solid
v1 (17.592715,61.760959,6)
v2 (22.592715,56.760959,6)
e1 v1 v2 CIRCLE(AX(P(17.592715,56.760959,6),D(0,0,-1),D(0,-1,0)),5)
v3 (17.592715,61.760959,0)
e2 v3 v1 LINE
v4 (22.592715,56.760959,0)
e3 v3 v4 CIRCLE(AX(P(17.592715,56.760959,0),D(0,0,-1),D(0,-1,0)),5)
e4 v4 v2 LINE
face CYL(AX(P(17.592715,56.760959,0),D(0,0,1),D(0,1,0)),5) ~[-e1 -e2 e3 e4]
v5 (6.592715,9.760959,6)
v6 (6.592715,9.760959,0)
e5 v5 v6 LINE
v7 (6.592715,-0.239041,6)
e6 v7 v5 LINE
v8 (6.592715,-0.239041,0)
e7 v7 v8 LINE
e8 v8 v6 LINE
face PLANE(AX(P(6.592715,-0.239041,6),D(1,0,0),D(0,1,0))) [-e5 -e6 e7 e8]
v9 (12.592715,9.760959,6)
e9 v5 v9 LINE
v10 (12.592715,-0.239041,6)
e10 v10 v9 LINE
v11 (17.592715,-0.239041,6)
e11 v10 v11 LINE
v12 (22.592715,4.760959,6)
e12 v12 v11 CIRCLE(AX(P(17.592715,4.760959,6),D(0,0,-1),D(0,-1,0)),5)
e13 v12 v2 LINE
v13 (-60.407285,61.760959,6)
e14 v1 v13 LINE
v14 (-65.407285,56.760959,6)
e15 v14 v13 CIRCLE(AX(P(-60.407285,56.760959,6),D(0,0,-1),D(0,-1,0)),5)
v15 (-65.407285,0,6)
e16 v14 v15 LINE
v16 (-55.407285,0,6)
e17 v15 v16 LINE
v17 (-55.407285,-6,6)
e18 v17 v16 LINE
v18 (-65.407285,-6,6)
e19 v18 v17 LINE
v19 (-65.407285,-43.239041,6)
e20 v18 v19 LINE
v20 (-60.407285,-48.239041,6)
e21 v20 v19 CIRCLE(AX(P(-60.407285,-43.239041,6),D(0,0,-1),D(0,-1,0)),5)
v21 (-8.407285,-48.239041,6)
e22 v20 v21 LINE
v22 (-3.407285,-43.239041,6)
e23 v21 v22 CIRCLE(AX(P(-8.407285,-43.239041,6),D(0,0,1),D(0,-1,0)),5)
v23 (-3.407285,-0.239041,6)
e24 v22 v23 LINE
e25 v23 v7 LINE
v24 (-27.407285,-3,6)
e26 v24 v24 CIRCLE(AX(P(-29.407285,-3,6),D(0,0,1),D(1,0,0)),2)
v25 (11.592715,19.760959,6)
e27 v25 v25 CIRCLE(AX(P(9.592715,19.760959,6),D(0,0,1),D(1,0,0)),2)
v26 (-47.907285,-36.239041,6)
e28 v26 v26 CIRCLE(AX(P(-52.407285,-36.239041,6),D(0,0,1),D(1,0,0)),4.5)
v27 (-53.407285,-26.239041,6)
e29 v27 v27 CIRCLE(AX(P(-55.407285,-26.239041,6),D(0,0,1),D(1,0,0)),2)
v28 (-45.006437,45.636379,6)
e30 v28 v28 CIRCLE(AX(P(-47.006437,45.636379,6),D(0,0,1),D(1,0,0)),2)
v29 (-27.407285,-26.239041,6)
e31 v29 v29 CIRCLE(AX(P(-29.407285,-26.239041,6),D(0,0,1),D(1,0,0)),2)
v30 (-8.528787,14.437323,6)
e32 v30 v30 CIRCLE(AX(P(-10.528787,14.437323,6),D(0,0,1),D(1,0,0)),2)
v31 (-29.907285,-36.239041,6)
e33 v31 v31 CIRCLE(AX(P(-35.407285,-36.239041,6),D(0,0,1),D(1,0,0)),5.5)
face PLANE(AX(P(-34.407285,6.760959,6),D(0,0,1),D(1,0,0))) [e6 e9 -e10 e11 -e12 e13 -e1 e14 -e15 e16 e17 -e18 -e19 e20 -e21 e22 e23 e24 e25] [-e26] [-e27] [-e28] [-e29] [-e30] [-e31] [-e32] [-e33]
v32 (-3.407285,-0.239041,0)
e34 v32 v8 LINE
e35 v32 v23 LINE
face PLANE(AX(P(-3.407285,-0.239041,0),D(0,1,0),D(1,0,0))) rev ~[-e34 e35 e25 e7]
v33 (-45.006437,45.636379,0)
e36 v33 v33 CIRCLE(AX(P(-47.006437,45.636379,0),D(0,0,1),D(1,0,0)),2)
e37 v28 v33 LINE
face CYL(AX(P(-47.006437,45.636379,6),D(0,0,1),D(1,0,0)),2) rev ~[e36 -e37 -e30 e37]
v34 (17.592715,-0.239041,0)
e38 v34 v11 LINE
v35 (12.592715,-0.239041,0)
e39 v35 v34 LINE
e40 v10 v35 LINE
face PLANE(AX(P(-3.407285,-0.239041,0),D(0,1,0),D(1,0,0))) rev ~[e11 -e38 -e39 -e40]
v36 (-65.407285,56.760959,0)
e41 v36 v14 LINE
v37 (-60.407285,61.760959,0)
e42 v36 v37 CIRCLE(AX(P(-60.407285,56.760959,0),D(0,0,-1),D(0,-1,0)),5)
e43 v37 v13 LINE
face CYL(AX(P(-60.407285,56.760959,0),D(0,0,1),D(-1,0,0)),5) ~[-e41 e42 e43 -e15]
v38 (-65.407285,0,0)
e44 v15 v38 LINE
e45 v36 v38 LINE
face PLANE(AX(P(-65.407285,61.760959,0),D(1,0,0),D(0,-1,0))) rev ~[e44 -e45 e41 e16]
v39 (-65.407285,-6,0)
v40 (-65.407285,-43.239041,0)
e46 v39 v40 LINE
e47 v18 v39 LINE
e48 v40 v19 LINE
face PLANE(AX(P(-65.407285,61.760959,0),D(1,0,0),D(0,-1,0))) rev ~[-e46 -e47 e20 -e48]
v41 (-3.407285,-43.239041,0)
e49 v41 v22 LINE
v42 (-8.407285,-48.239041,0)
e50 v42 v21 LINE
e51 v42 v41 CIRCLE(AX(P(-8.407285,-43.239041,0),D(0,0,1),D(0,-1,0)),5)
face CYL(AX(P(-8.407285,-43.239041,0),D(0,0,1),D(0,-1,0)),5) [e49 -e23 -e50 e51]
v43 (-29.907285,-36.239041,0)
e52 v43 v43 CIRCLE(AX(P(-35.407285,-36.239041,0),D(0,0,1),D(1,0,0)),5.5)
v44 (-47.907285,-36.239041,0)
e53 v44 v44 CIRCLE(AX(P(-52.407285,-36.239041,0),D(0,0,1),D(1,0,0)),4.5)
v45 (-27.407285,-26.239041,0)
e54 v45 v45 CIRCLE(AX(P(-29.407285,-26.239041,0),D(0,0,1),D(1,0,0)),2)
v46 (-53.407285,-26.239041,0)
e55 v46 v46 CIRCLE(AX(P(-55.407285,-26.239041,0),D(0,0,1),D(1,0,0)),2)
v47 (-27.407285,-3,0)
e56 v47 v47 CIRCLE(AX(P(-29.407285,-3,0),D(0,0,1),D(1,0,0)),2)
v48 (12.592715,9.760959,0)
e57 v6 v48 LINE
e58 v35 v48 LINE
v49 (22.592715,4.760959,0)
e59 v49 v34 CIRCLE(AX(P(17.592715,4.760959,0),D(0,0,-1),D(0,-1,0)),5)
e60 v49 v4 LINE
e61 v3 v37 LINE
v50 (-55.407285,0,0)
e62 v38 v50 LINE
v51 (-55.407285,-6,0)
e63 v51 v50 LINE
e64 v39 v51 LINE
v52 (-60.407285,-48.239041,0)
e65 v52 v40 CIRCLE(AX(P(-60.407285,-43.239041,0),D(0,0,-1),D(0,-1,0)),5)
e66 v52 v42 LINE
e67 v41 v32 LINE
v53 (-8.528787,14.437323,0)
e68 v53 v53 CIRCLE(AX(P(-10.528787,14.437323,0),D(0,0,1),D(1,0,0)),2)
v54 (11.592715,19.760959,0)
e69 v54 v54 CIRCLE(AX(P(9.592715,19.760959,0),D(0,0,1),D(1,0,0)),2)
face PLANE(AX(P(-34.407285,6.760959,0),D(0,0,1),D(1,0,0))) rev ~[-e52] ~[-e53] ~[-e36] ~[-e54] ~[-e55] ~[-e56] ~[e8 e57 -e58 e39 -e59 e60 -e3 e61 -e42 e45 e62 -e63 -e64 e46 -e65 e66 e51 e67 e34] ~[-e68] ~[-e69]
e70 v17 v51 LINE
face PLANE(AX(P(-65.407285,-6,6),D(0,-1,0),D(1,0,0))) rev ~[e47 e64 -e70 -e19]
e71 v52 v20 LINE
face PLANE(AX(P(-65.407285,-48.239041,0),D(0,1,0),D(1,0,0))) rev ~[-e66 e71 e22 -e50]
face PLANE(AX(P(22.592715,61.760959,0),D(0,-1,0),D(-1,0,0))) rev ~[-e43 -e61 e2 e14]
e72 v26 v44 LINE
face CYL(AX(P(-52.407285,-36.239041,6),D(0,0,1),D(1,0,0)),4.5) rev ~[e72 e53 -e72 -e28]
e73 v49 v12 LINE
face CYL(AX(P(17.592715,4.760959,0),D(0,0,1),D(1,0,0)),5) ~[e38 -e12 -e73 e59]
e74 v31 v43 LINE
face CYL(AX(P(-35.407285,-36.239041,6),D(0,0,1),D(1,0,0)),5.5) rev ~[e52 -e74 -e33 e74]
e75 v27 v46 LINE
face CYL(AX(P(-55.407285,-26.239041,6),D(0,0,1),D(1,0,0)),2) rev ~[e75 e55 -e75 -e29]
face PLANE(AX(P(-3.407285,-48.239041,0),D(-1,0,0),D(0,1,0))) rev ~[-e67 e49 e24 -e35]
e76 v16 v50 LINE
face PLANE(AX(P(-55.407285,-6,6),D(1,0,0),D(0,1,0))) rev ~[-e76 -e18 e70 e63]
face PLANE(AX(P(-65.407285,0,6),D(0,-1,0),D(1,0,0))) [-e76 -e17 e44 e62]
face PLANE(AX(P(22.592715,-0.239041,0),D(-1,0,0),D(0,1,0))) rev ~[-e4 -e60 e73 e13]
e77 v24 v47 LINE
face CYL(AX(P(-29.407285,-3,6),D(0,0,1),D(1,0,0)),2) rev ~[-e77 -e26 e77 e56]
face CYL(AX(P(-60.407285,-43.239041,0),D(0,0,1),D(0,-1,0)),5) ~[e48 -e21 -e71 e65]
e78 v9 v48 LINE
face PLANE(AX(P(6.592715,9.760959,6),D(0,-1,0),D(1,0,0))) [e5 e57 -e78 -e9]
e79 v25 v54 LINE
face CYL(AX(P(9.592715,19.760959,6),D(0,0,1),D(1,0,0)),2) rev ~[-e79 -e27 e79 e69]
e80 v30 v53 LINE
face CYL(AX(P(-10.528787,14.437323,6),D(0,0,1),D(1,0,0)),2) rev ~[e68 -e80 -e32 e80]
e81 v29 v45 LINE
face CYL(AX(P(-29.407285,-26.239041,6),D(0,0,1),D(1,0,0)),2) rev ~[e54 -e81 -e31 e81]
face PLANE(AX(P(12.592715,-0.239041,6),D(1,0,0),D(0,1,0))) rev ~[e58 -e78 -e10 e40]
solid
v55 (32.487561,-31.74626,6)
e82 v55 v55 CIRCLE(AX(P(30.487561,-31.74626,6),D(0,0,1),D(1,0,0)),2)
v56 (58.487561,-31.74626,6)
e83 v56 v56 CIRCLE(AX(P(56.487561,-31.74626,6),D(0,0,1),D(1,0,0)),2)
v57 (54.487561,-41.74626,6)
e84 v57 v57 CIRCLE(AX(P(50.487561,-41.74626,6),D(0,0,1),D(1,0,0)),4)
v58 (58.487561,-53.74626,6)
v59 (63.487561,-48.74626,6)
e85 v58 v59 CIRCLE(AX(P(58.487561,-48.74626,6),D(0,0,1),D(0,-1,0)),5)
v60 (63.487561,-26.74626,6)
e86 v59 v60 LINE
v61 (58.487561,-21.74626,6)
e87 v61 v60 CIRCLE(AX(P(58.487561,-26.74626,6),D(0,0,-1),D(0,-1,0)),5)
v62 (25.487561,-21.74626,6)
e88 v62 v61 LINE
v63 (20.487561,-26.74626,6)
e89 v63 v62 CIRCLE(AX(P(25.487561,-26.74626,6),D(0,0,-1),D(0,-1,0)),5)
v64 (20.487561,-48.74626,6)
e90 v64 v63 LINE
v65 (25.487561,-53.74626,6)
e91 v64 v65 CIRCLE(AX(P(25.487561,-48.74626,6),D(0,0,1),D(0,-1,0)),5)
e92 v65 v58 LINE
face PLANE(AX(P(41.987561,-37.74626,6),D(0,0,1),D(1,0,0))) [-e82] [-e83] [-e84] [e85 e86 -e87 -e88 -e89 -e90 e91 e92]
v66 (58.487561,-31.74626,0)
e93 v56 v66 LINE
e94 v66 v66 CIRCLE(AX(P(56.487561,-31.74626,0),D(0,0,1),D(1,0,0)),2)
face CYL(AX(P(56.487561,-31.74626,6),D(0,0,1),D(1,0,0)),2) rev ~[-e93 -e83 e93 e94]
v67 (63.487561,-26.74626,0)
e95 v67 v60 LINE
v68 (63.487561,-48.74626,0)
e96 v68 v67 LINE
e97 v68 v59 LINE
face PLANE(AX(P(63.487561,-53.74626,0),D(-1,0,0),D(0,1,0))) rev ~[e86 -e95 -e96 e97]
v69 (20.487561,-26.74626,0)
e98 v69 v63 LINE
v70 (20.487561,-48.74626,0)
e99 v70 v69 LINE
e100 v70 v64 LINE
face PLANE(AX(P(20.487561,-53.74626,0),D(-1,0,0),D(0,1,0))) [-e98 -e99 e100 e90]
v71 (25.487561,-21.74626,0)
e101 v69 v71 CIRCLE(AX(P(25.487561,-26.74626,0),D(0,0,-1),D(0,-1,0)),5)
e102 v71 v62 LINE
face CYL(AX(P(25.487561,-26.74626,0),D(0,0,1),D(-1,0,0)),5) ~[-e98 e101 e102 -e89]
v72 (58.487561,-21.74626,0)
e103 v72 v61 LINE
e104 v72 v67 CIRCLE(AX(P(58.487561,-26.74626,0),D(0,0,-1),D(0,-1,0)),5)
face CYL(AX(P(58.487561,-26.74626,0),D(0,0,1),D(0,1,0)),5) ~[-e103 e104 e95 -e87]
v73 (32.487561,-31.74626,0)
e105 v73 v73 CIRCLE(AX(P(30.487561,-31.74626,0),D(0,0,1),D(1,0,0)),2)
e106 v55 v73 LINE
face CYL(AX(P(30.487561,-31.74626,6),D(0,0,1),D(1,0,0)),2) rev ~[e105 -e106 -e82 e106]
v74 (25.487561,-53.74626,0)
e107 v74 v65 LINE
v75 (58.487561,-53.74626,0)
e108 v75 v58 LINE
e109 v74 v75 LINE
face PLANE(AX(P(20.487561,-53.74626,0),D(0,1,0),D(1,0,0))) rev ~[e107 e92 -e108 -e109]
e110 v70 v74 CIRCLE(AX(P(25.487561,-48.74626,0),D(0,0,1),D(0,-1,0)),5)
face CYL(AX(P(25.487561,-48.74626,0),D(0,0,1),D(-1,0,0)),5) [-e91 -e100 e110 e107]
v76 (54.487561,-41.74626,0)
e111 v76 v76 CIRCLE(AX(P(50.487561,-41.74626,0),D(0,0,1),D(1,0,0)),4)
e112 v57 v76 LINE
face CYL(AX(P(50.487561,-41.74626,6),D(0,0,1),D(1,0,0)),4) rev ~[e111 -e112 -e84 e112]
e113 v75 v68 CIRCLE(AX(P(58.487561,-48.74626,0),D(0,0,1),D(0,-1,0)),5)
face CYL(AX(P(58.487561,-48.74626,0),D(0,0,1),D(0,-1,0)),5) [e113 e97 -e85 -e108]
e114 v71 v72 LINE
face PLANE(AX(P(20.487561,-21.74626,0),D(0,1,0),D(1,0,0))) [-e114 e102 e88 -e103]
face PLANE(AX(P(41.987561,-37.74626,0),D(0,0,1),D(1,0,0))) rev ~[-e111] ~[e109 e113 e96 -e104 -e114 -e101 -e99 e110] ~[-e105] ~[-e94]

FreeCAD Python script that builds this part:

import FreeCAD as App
import Part
import Sketcher

V = App.Vector
Q = App.Units.Quantity


def edges_at(feature, points):
    """Names of the edges that pass closest to the given points."""
    edges = feature.Shape.Edges
    near = lambda p: min(range(len(edges)), key=lambda i: edges[i].distToShape(Part.Vertex(*p))[0])
    return sorted({f"Edge{near(p) + 1}" for p in points})


def add_polygon(sketch, points):
    """Adds a closed chain of lines whose ends are joined by coincident constraints."""
    first, n = sketch.GeometryCount, len(points)
    for a, b in zip(points, points[1:] + points[:1]):
        sketch.addGeometry(Part.LineSegment(App.Vector(*a, 0), App.Vector(*b, 0)), False)
    for i in range(n):
        sketch.addConstraint(Sketcher.Constraint("Coincident", first + i, 2, first + (i + 1) % n, 1))

doc = App.newDocument("Part")
params = doc.addObject("Spreadsheet::Sheet", "Params")
for row, (alias, value) in enumerate([
    ("sketch1_width", "62 mm"),
    ("sketch1_width2", "26 mm"),
    ("sketch1_height", "48 mm"),
    ("pad1_length", "6 mm"),
    ("sketch2_width", "10 mm"),
    ("sketch2_width2", "6 mm"),
    ("pocket1_length", "25 mm"),
    ("sketch3_diameter", "9 mm"),
    ("sketch3_diameter2", "11 mm"),
    ("sketch3_diameter3", "4 mm"),
    ("pocket2_length", "25 mm"),
    ("fillet_radius", "5 mm"),
    ("sketch4_diameter", "4 mm"),
    ("pocket3_length", "25 mm"),
    ("sketch5_diameter", "4 mm"),
    ("pocket4_length", "25 mm"),
    ("sketch6_width", "43 mm"),
    ("sketch6_height", "32 mm"),
    ("pad2_length", "6 mm"),
    ("sketch7_diameter", "4 mm"),
    ("sketch7_diameter2", "8 mm"),
    ("pocket5_length", "25 mm"),
    ("fillet2_radius", "5 mm"),
], start=1):
    params.set(f"A{row}", alias)
    params.set(f"B{row}", "=" + value)
    params.setAlias(f"B{row}", alias)

body = doc.addObject("PartDesign::Body", "Body")

# Sketch on XY plane
sketch1 = body.newObject("Sketcher::SketchObject", "Sketch")
sketch1.AttachmentSupport = (doc.getObject("XY_Plane"), [""])
sketch1.MapMode = "FlatFace"
add_polygon(sketch1, [(-65, -48), (-3, -48), (-3, 0), (23, 0), (23, 62), (-65, 62)])  # lines 0-5
sketch1.addConstraint([
    Sketcher.Constraint("Horizontal", 0),
    Sketcher.Constraint("Vertical", 1),
    Sketcher.Constraint("Horizontal", 2),
    Sketcher.Constraint("Vertical", 3),
    Sketcher.Constraint("Horizontal", 4),
    Sketcher.Constraint("Vertical", 5),
    Sketcher.Constraint("Equal", 0, 3),
    Sketcher.Constraint("DistanceX", 0, 1, 0, 2, Q("62 mm")),
    Sketcher.Constraint("DistanceX", 2, 1, 2, 2, Q("26 mm")),
    Sketcher.Constraint("DistanceY", 1, 1, 1, 2, Q("48 mm")),
    Sketcher.Constraint("DistanceY", 0, 2, -1, 1, Q("48.239041 mm")),
    Sketcher.Constraint("DistanceX", 0, 2, -1, 1, Q("3.407285 mm")),
])
sketch1.setExpression("Constraints[13]", "Params.sketch1_width")
sketch1.setExpression("Constraints[14]", "Params.sketch1_width2")
sketch1.setExpression("Constraints[15]", "Params.sketch1_height")
pad1 = body.newObject("PartDesign::Pad", "Pad")
pad1.Profile = sketch1
pad1.setExpression("Length", "Params.pad1_length")

# Sketch on XY plane
sketch2 = body.newObject("Sketcher::SketchObject", "Sketch001")
sketch2.AttachmentSupport = (doc.getObject("XY_Plane"), [""])
sketch2.MapMode = "FlatFace"
sketch2.AttachmentOffset = App.Placement(V(0, 0, 6), App.Rotation())
add_polygon(sketch2, [(-65, 0), (-65, -6), (-55, -6), (-55, 0)])  # lines 0-3
add_polygon(sketch2, [(7, 10), (7, 0), (13, 0), (13, 10)])  # lines 4-7
sketch2.addConstraint([
    Sketcher.Constraint("Vertical", 0),
    Sketcher.Constraint("Horizontal", 1),
    Sketcher.Constraint("Vertical", 2),
    Sketcher.Constraint("Horizontal", 3),
    Sketcher.Constraint("Vertical", 4),
    Sketcher.Constraint("Horizontal", 5),
    Sketcher.Constraint("Vertical", 6),
    Sketcher.Constraint("Horizontal", 7),
    Sketcher.Constraint("PointOnObject", 2, 2, -1),
    Sketcher.Constraint("Equal", 7, 0),
    Sketcher.Constraint("Equal", 3, 4),
    Sketcher.Constraint("DistanceX", 1, 1, 1, 2, Q("10 mm")),
    Sketcher.Constraint("DistanceX", 5, 1, 5, 2, Q("6 mm")),
    Sketcher.Constraint("DistanceX", 2, 2, 4, 2, Q("62 mm")),
    Sketcher.Constraint("DistanceY", 4, 2, -1, 1, Q("0.239041 mm")),
    Sketcher.Constraint("DistanceX", 0, 2, -1, 1, Q("65.407285 mm")),
])
sketch2.setExpression("Constraints[19]", "Params.sketch2_width")
sketch2.setExpression("Constraints[20]", "Params.sketch2_width2")
pocket1 = body.newObject("PartDesign::Pocket", "Pocket")
pocket1.Profile = sketch2
pocket1.setExpression("Length", "Params.pocket1_length")

# Sketch on XY plane
sketch3 = body.newObject("Sketcher::SketchObject", "Sketch002")
sketch3.AttachmentSupport = (doc.getObject("XY_Plane"), [""])
sketch3.MapMode = "FlatFace"
sketch3.AttachmentOffset = App.Placement(V(0, 0, 6), App.Rotation())
sketch3.addGeometry([
    Part.Circle(V(-52.4, -36.2, 0), V(0, 0, 1), 4.5),
    Part.Circle(V(-35.4, -36.2, 0), V(0, 0, 1), 5.5),
    Part.Circle(V(-29.4, -3, 0), V(0, 0, 1), 2),
    Part.Circle(V(9.6, 19.8, 0), V(0, 0, 1), 2),
], False)
sketch3.addConstraint([
    Sketcher.Constraint("Equal", 2, 3),
    Sketcher.Constraint("Horizontal", 0, 3, 1, 3),
    Sketcher.Constraint("Diameter", 0, Q("9 mm")),
    Sketcher.Constraint("Diameter", 1, Q("11 mm")),
    Sketcher.Constraint("Diameter", 2, Q("4 mm")),
    Sketcher.Constraint("DistanceY", 2, 3, -1, 1, Q("3 mm")),
    Sketcher.Constraint("DistanceX", 0, 3, 1, 3, Q("17 mm")),
    Sketcher.Constraint("DistanceX", 1, 3, 2, 3, Q("6 mm")),
    Sketcher.Constraint("DistanceX", 2, 3, 3, 3, Q("39 mm")),
    Sketcher.Constraint("DistanceY", 1, 3, 3, 3, Q("56 mm")),
    Sketcher.Constraint("DistanceY", 0, 3, -1, 1, Q("36.239041 mm")),
    Sketcher.Constraint("DistanceX", 0, 3, -1, 1, Q("52.407285 mm")),
])
sketch3.setExpression("Constraints[2]", "Params.sketch3_diameter")
sketch3.setExpression("Constraints[3]", "Params.sketch3_diameter2")
sketch3.setExpression("Constraints[4]", "Params.sketch3_diameter3")
pocket2 = body.newObject("PartDesign::Pocket", "Pocket001")
pocket2.Profile = sketch3
pocket2.setExpression("Length", "Params.pocket2_length")
doc.recompute()

fillet = body.newObject("PartDesign::Fillet", "Fillet")
fillet.Base = (pocket2, edges_at(pocket2, [
    (-65.407, -48.239, 3),
    (-3.407, -48.239, 3),
    (22.593, -0.239, 3),
    (22.593, 61.761, 3),
    (-65.407, 61.761, 3),
]))
fillet.setExpression("Radius", "Params.fillet_radius")

# Sketch on XY plane
sketch4 = body.newObject("Sketcher::SketchObject", "Sketch003")
sketch4.AttachmentSupport = (doc.getObject("XY_Plane"), [""])
sketch4.MapMode = "FlatFace"
sketch4.AttachmentOffset = App.Placement(V(0, 0, 6), App.Rotation())
sketch4.addGeometry([
    Part.Circle(V(-55.4, -26.2, 0), V(0, 0, 1), 2),
    Part.Circle(V(-29.4, -26.2, 0), V(0, 0, 1), 2),
], False)
sketch4.addConstraint([
    Sketcher.Constraint("Equal", 0, 1),
    Sketcher.Constraint("Horizontal", 0, 3, 1, 3),
    Sketcher.Constraint("Diameter", 0, Q("4 mm")),
    Sketcher.Constraint("DistanceX", 0, 3, 1, 3, Q("26 mm")),
    Sketcher.Constraint("DistanceY", 0, 3, -1, 1, Q("26.239041 mm")),
    Sketcher.Constraint("DistanceX", 0, 3, -1, 1, Q("55.407285 mm")),
])
sketch4.setExpression("Constraints[2]", "Params.sketch4_diameter")
pocket3 = body.newObject("PartDesign::Pocket", "Pocket002")
pocket3.Profile = sketch4
pocket3.setExpression("Length", "Params.pocket3_length")

# Sketch on XY plane
sketch5 = body.newObject("Sketcher::SketchObject", "Sketch004")
sketch5.AttachmentSupport = (doc.getObject("XY_Plane"), [""])
sketch5.MapMode = "FlatFace"
sketch5.AttachmentOffset = App.Placement(V(0, 0, 6), App.Rotation())
sketch5.addGeometry([
    Part.Circle(V(-47, 45.6, 0), V(0, 0, 1), 2),
    Part.Circle(V(-10.5, 14.4, 0), V(0, 0, 1), 2),
], False)
sketch5.addConstraint([
    Sketcher.Constraint("Equal", 0, 1),
    Sketcher.Constraint("Diameter", 0, Q("4 mm")),
    Sketcher.Constraint("DistanceY", -1, 1, 0, 3, Q("45.636379 mm")),
    Sketcher.Constraint("DistanceX", 0, 3, 1, 3, Q("36.47765 mm")),
    Sketcher.Constraint("DistanceX", 0, 3, -1, 1, Q("47.006437 mm")),
    Sketcher.Constraint("DistanceY", -1, 1, 1, 3, Q("14.437323 mm")),
])
sketch5.setExpression("Constraints[1]", "Params.sketch5_diameter")
pocket4 = body.newObject("PartDesign::Pocket", "Pocket003")
pocket4.Profile = sketch5
pocket4.setExpression("Length", "Params.pocket4_length")
body2 = doc.addObject("PartDesign::Body", "Body001")

# Sketch on XY plane
sketch6 = body2.newObject("Sketcher::SketchObject", "Sketch005")
sketch6.AttachmentSupport = (doc.getObject("XY_Plane001"), [""])
sketch6.MapMode = "FlatFace"
add_polygon(sketch6, [(20, -22), (20, -54), (63, -54), (63, -22)])  # lines 0-3
sketch6.addConstraint([
    Sketcher.Constraint("Vertical", 0),
    Sketcher.Constraint("Horizontal", 1),
    Sketcher.Constraint("Vertical", 2),
    Sketcher.Constraint("Horizontal", 3),
    Sketcher.Constraint("DistanceX", 1, 1, 1, 2, Q("43 mm")),
    Sketcher.Constraint("DistanceY", 0, 2, 0, 1, Q("32 mm")),
    Sketcher.Constraint("DistanceX", -1, 1, 0, 2, Q("20.487561 mm")),
    Sketcher.Constraint("DistanceY", 0, 2, -1, 1, Q("53.74626 mm")),
])
sketch6.setExpression("Constraints[8]", "Params.sketch6_width")
sketch6.setExpression("Constraints[9]", "Params.sketch6_height")
pad2 = body2.newObject("PartDesign::Pad", "Pad001")
pad2.Profile = sketch6
pad2.setExpression("Length", "Params.pad2_length")

# Sketch on XY plane
sketch7 = body2.newObject("Sketcher::SketchObject", "Sketch006")
sketch7.AttachmentSupport = (doc.getObject("XY_Plane001"), [""])
sketch7.MapMode = "FlatFace"
sketch7.AttachmentOffset = App.Placement(V(0, 0, 6), App.Rotation())
sketch7.addGeometry([
    Part.Circle(V(30.5, -31.7, 0), V(0, 0, 1), 2),
    Part.Circle(V(50.5, -41.7, 0), V(0, 0, 1), 4),
    Part.Circle(V(56.5, -31.7, 0), V(0, 0, 1), 2),
], False)
sketch7.addConstraint([
    Sketcher.Constraint("Equal", 0, 2),
    Sketcher.Constraint("Horizontal", 0, 3, 2, 3),
    Sketcher.Constraint("Diameter", 0, Q("4 mm")),
    Sketcher.Constraint("Diameter", 1, Q("8 mm")),
    Sketcher.Constraint("DistanceX", 0, 3, 1, 3, Q("20 mm")),
    Sketcher.Constraint("DistanceY", 1, 3, 0, 3, Q("10 mm")),
    Sketcher.Constraint("DistanceX", 1, 3, 2, 3, Q("6 mm")),
    Sketcher.Constraint("DistanceX", -1, 1, 0, 3, Q("30.487561 mm")),
    Sketcher.Constraint("DistanceY", 0, 3, -1, 1, Q("31.74626 mm")),
])
sketch7.setExpression("Constraints[2]", "Params.sketch7_diameter")
sketch7.setExpression("Constraints[3]", "Params.sketch7_diameter2")
pocket5 = body2.newObject("PartDesign::Pocket", "Pocket004")
pocket5.Profile = sketch7
pocket5.setExpression("Length", "Params.pocket5_length")
doc.recompute()

fillet2 = body2.newObject("PartDesign::Fillet", "Fillet001")
fillet2.Base = (pocket5, edges_at(pocket5, [
    (20.488, -53.746, 3),
    (63.488, -53.746, 3),
    (63.488, -21.746, 3),
    (20.488, -21.746, 3),
]))
fillet2.setExpression("Radius", "Params.fillet2_radius")

doc.recompute()
